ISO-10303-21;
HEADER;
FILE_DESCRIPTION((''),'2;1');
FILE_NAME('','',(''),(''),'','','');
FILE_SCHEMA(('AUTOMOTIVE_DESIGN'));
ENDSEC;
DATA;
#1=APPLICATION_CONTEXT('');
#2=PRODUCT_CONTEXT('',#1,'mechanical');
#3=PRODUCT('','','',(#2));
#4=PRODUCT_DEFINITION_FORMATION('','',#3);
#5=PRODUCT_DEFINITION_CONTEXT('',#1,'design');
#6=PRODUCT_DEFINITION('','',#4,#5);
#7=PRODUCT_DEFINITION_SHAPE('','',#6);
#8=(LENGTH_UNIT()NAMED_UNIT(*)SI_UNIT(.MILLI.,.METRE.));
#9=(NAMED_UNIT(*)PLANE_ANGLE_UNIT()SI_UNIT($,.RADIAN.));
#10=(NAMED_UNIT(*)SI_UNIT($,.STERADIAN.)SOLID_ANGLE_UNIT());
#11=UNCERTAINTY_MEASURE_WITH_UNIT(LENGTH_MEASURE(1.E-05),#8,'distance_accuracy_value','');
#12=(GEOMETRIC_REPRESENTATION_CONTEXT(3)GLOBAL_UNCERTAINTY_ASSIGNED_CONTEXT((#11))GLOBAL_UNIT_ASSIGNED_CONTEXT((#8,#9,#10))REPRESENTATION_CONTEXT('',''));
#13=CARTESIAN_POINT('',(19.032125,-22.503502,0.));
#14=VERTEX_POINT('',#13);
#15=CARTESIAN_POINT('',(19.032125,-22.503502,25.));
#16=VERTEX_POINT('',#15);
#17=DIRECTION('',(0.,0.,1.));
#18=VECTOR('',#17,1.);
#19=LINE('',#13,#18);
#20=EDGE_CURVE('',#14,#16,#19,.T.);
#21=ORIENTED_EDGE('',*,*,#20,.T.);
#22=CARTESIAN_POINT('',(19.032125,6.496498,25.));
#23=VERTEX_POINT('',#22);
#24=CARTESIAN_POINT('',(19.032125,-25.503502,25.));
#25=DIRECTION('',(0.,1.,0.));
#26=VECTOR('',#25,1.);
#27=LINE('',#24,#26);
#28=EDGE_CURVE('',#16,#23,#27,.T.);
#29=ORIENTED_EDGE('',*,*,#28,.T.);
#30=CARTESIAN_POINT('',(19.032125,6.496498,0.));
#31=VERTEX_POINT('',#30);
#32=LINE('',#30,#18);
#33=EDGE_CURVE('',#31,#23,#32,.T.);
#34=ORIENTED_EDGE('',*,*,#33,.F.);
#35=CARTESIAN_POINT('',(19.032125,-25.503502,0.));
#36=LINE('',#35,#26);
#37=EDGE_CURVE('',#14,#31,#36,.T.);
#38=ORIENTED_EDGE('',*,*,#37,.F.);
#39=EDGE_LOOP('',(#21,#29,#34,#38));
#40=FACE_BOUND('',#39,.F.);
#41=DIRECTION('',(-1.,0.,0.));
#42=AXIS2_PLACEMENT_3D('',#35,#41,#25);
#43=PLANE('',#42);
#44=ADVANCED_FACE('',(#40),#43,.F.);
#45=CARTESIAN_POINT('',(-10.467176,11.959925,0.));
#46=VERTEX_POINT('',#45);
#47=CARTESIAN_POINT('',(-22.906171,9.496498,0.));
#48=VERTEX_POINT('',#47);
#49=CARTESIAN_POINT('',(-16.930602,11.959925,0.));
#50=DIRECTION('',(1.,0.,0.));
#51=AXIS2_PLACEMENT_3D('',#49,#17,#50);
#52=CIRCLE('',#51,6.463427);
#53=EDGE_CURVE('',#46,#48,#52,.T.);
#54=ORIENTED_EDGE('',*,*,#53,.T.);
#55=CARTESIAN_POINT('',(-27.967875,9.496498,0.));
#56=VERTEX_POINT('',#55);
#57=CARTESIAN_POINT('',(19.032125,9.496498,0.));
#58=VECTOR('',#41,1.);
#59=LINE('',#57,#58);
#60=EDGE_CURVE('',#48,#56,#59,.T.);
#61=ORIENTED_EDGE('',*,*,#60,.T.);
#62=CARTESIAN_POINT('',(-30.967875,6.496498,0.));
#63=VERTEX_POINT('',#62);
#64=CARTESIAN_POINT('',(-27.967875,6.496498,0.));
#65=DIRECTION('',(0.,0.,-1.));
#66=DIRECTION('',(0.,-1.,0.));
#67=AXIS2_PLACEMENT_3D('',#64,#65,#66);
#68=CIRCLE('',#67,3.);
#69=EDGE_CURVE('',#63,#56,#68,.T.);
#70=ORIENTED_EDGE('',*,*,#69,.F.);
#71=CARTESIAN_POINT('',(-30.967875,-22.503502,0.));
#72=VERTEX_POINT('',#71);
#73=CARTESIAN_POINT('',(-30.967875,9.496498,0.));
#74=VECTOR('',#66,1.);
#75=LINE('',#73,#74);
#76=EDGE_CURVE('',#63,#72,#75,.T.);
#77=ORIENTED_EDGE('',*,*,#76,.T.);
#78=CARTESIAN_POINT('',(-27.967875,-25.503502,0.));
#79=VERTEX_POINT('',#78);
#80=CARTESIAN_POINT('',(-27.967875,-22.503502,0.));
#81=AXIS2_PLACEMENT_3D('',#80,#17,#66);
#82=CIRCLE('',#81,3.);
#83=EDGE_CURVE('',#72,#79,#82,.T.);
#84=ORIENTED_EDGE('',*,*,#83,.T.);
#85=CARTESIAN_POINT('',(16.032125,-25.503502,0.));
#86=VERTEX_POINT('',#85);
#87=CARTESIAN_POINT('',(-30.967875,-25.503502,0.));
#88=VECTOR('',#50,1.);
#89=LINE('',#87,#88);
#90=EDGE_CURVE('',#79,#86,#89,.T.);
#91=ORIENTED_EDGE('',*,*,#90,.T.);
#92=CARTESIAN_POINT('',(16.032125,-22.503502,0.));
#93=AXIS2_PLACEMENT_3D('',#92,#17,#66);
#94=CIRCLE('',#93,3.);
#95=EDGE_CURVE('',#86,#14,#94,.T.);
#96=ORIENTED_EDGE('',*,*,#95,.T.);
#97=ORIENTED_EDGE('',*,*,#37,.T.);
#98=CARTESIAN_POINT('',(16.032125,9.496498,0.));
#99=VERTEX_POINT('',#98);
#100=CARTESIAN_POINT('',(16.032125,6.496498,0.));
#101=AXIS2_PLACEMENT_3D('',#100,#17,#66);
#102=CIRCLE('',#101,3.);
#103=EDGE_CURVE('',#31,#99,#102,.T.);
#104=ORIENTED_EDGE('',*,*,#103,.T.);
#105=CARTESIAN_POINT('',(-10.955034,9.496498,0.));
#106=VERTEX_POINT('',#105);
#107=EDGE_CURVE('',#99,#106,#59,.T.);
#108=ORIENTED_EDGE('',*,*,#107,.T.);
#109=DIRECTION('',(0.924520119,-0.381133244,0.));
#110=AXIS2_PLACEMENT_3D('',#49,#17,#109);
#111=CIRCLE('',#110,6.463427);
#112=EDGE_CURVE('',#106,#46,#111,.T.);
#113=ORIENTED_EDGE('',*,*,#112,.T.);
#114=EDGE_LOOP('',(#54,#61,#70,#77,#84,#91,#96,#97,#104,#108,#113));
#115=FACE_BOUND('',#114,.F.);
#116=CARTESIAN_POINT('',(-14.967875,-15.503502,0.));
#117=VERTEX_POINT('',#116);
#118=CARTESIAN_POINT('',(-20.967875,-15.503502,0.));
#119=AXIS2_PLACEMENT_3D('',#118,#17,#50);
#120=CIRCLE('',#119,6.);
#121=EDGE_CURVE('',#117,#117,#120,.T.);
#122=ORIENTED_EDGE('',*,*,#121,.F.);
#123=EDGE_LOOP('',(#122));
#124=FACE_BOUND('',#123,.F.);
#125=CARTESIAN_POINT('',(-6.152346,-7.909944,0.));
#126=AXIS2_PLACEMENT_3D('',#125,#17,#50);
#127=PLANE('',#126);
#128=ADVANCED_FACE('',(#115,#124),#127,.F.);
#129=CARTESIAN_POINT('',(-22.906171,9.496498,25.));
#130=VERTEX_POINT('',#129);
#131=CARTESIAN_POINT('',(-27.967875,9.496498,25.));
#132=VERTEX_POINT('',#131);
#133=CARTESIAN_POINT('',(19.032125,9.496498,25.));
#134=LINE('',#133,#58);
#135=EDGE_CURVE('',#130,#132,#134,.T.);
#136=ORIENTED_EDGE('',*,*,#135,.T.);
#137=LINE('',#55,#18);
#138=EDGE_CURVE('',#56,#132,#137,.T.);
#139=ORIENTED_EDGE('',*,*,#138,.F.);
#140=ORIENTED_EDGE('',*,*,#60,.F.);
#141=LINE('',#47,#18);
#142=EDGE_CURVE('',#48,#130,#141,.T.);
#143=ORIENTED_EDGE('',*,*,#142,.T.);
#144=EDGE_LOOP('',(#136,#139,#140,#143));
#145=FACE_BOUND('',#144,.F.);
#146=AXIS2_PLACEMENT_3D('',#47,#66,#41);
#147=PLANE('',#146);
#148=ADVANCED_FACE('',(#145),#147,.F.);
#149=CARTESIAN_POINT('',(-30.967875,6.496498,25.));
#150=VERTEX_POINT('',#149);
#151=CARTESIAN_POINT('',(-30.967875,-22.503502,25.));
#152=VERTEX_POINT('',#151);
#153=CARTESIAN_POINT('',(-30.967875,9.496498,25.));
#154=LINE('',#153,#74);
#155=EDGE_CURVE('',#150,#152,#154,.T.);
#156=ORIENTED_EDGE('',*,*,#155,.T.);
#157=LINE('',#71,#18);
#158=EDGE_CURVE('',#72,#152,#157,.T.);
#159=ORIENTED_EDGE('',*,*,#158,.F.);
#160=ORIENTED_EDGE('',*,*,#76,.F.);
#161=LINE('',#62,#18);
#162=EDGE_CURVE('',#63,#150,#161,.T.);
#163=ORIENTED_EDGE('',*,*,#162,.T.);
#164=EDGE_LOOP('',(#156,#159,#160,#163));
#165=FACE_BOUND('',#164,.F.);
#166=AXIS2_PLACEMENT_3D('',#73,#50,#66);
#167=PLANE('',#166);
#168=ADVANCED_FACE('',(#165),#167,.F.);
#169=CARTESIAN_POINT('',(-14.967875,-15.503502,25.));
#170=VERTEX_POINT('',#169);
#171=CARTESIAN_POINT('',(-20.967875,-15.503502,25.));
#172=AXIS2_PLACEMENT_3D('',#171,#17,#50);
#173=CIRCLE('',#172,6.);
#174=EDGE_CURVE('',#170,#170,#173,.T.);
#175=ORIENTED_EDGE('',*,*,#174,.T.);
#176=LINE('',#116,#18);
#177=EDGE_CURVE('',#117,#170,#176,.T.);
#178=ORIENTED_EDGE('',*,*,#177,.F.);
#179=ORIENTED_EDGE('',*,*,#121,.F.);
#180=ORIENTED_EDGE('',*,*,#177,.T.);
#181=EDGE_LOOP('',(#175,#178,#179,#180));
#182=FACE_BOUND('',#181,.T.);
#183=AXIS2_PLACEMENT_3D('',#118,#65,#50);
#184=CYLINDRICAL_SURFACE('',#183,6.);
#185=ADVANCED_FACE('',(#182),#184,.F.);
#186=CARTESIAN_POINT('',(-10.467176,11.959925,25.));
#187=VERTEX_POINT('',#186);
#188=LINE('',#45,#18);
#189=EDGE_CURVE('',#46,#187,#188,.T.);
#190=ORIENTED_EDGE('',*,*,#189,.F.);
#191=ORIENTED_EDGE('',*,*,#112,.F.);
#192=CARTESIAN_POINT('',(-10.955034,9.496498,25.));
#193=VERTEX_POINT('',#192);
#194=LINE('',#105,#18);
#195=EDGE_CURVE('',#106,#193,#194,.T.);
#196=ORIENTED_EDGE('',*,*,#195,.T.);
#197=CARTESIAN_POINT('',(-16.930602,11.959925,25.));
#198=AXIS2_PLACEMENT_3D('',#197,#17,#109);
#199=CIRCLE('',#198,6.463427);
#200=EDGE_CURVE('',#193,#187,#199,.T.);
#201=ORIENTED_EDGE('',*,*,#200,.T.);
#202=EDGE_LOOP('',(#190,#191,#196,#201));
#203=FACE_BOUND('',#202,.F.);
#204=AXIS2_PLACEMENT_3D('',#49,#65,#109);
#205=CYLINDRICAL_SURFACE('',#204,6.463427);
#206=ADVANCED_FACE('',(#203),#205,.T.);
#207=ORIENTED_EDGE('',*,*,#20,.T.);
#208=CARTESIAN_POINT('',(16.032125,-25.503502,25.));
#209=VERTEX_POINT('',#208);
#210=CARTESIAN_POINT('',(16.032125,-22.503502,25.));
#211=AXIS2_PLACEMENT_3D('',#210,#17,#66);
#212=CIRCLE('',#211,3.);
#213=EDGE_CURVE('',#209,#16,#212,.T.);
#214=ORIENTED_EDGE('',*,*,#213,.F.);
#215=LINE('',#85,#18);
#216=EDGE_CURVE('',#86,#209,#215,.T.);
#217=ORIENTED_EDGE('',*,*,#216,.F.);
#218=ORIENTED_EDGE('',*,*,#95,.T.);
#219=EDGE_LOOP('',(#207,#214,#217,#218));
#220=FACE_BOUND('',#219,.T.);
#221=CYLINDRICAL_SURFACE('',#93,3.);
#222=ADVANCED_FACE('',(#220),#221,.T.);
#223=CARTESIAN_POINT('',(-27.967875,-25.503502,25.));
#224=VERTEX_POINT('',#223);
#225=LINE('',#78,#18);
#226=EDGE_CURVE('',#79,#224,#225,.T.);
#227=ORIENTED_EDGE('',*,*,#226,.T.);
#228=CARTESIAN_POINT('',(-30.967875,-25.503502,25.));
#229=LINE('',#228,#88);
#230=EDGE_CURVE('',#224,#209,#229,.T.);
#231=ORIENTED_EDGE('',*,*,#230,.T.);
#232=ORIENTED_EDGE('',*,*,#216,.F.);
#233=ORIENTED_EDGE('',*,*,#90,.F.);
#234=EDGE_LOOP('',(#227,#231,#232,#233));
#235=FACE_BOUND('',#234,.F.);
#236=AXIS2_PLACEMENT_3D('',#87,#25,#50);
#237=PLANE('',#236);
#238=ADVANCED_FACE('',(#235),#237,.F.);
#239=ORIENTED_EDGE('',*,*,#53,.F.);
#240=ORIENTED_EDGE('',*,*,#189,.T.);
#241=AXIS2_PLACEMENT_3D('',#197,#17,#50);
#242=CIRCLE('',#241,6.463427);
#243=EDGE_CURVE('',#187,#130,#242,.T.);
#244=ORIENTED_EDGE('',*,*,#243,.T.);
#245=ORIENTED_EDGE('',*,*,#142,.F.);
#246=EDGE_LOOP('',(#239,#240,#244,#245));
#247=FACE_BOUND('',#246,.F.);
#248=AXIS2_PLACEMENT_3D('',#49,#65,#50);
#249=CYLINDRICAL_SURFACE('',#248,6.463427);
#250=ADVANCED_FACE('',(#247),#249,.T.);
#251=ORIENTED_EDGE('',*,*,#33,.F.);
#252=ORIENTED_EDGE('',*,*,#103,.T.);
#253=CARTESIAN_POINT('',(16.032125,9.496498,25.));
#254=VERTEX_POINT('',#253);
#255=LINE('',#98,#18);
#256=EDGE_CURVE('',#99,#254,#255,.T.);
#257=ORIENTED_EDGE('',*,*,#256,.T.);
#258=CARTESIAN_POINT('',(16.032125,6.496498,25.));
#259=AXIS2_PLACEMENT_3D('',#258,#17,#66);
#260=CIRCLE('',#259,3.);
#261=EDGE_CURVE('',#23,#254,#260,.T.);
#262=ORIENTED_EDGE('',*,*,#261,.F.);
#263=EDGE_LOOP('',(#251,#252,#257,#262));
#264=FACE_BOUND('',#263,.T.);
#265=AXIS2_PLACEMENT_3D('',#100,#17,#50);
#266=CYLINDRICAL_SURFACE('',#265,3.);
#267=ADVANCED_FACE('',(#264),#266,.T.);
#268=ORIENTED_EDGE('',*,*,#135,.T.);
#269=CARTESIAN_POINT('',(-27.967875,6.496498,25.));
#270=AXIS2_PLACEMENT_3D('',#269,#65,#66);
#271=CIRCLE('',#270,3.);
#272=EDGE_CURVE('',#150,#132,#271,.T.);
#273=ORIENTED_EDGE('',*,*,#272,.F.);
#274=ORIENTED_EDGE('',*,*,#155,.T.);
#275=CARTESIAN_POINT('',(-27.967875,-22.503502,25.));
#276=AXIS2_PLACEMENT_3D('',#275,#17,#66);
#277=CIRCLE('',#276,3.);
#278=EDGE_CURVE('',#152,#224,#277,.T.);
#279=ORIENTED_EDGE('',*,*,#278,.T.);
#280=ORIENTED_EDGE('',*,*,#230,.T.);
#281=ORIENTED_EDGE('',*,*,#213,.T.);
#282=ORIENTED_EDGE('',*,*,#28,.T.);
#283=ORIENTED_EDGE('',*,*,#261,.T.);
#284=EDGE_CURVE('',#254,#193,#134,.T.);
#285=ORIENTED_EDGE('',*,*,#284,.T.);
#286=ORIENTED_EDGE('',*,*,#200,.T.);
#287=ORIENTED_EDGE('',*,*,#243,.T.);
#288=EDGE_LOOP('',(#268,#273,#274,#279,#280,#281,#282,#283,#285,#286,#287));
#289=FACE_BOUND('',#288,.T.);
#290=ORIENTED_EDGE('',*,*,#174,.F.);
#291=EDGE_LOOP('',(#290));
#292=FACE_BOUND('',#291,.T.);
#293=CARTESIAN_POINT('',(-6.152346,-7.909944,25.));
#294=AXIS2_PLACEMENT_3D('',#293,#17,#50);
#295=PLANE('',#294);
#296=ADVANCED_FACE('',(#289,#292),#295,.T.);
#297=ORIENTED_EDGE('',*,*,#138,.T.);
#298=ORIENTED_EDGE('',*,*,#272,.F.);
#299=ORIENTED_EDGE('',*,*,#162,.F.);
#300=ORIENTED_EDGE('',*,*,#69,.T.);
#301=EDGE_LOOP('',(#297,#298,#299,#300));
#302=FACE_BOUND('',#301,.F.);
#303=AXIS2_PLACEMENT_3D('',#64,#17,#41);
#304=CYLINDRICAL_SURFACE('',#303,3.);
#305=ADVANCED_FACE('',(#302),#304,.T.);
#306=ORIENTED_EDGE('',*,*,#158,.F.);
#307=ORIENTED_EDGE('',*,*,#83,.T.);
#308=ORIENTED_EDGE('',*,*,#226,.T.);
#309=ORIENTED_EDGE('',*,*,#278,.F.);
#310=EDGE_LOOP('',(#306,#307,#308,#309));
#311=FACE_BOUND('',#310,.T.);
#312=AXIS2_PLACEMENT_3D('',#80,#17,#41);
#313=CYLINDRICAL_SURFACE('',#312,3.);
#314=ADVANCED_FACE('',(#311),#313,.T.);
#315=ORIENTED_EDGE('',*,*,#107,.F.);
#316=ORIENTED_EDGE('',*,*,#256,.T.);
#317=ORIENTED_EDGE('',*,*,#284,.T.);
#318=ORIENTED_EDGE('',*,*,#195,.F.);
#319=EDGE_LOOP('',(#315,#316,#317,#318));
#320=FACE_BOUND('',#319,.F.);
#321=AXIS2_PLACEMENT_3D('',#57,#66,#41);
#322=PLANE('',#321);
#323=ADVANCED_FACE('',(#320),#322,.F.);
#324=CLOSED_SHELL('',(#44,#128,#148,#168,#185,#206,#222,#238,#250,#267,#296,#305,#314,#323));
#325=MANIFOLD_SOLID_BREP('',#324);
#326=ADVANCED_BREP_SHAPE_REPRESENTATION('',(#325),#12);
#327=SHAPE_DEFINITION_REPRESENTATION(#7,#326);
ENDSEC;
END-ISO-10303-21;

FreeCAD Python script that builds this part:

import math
import FreeCAD as App
import Part
import Sketcher

V = App.Vector
Q = App.Units.Quantity


def edges_at(feature, points):
    """Names of the edges that pass closest to the given points."""
    edges = feature.Shape.Edges
    near = lambda p: min(range(len(edges)), key=lambda i: edges[i].distToShape(Part.Vertex(*p))[0])
    return sorted({f"Edge{near(p) + 1}" for p in points})

doc = App.newDocument("Part")
body = doc.addObject("PartDesign::Body", "Body")

sketch1 = body.newObject("Sketcher::SketchObject", "Sketch")
sketch1.AttachmentSupport = (doc.getObject("XY_Plane"), [""])
sketch1.MapMode = "FlatFace"
sketch1.addGeometry([
    Part.LineSegment(V(-31, 9.5, 0), V(-31, -25.5, 0)),
    Part.LineSegment(V(-31, -25.5, 0), V(19, -25.5, 0)),
    Part.LineSegment(V(19, -25.5, 0), V(19, 9.5, 0)),
    Part.LineSegment(V(19, 9.5, 0), V(-11, 9.5, 0)),
    Part.ArcOfCircle(Part.Circle(V(-16.9, 12, 0), V(0, 0, 1), 6.5), math.radians(-22), math.radians(0)),
    Part.ArcOfCircle(Part.Circle(V(-16.9, 12, 0), V(0, 0, 1), 6.5), math.radians(0), math.radians(202)),
    Part.LineSegment(V(-22.9, 9.5, 0), V(-31, 9.5, 0)),
    Part.Circle(V(-21, -15.5, 0), V(0, 0, 1), 6),
], False)
sketch1.addConstraint([
    Sketcher.Constraint("Coincident", 0, 2, 1, 1),
    Sketcher.Constraint("Coincident", 1, 2, 2, 1),
    Sketcher.Constraint("Coincident", 2, 2, 3, 1),
    Sketcher.Constraint("Coincident", 3, 2, 4, 1),
    Sketcher.Constraint("Tangent", 4, 2, 5, 1),
    Sketcher.Constraint("Coincident", 5, 2, 6, 1),
    Sketcher.Constraint("Coincident", 6, 2, 0, 1),
    Sketcher.Constraint("Vertical", 0),
    Sketcher.Constraint("Horizontal", 1),
    Sketcher.Constraint("Vertical", 2),
    Sketcher.Constraint("Horizontal", 3),
    Sketcher.Constraint("Horizontal", 6),
    Sketcher.Constraint("Equal", 4, 5),
    Sketcher.Constraint("Horizontal", 5, 3, 4, 2),
    Sketcher.Constraint("Horizontal", 3, 2, 5, 2),
    Sketcher.Constraint("Diameter", 7, Q("12 mm")),
    Sketcher.Constraint("DistanceX", 1, 1, 1, 2, Q("50 mm")),
    Sketcher.Constraint("DistanceY", 0, 2, 0, 1, Q("35 mm")),
    Sketcher.Constraint("DistanceX", 0, 2, 7, 3, Q("10 mm")),
    Sketcher.Constraint("DistanceY", 0, 2, 7, 3, Q("10 mm")),
    Sketcher.Constraint("Radius", 4, Q("6.463427 mm")),
    Sketcher.Constraint("DistanceX", 3, 2, 3, 1, Q("29.987159 mm")),
    Sketcher.Constraint("DistanceY", 7, 3, -1, 1, Q("15.503502 mm")),
    Sketcher.Constraint("DistanceX", 7, 3, 4, 2, Q("10.500699 mm")),
    Sketcher.Constraint("DistanceX", 5, 2, -1, 1, Q("22.906171 mm")),
])
pad1 = body.newObject("PartDesign::Pad", "Pad")
pad1.Profile = sketch1
pad1.Length = 25
doc.recompute()

fillet = body.newObject("PartDesign::Fillet", "Fillet")
fillet.Base = (pad1, edges_at(pad1, [
    (-30.968, 9.496, 12.5),
    (-30.968, -25.504, 12.5),
    (19.032, -25.504, 12.5),
    (19.032, 9.496, 12.5),
]))
fillet.Radius = 3

doc.recompute()
